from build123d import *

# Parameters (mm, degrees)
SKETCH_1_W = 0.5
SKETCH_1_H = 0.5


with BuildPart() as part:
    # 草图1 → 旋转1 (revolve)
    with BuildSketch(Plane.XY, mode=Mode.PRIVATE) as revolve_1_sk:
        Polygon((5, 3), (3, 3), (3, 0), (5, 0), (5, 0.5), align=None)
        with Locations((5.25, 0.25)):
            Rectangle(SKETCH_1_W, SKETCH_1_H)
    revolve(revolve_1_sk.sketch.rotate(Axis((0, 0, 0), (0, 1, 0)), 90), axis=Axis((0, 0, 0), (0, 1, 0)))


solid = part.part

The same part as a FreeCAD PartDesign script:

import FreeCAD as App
import Part
import Sketcher

doc = App.newDocument("Part")
body = doc.addObject("PartDesign::Body", "Body")

sketch1 = body.newObject("Sketcher::SketchObject", "Sketch")
sketch1.AttachmentSupport = (doc.getObject("XY_Plane"), [""])
sketch1.MapMode = "FlatFace"
sketch1.addGeometry(Part.LineSegment(App.Vector(5, 3, 0), App.Vector(3, 3, 0)), False)
sketch1.addGeometry(Part.LineSegment(App.Vector(3, 3, 0), App.Vector(3, 0, 0)), False)
sketch1.addGeometry(Part.LineSegment(App.Vector(3, 0, 0), App.Vector(5.5, 0, 0)), False)
sketch1.addGeometry(Part.LineSegment(App.Vector(5.5, 0, 0), App.Vector(5.5, 0.5, 0)), False)
sketch1.addGeometry(Part.LineSegment(App.Vector(5.5, 0.5, 0), App.Vector(5, 0.5, 0)), False)
sketch1.addGeometry(Part.LineSegment(App.Vector(5, 0.5, 0), App.Vector(5, 3, 0)), False)
sketch1.addConstraint(Sketcher.Constraint("Coincident", 0, 2, 1, 1))
sketch1.addConstraint(Sketcher.Constraint("Coincident", 1, 2, 2, 1))
sketch1.addConstraint(Sketcher.Constraint("Coincident", 2, 2, 3, 1))
sketch1.addConstraint(Sketcher.Constraint("Coincident", 3, 2, 4, 1))
sketch1.addConstraint(Sketcher.Constraint("Coincident", 4, 2, 5, 1))
sketch1.addConstraint(Sketcher.Constraint("Coincident", 5, 2, 0, 1))
sketch1.addConstraint(Sketcher.Constraint("Horizontal", 0))
sketch1.addConstraint(Sketcher.Constraint("Vertical", 1))
sketch1.addConstraint(Sketcher.Constraint("Horizontal", 2))
sketch1.addConstraint(Sketcher.Constraint("Vertical", 3))
sketch1.addConstraint(Sketcher.Constraint("Horizontal", 4))
sketch1.addConstraint(Sketcher.Constraint("Vertical", 5))
sketch1.addConstraint(Sketcher.Constraint("PointOnObject", 1, 2, -1))
sketch1.addConstraint(Sketcher.Constraint("Equal", 4, 3))
sketch1.addConstraint(Sketcher.Constraint("Equal", 2, 5))
sketch1.addConstraint(Sketcher.Constraint("DistanceX", 0, 2, 0, 1, 2.0))
sketch1.addConstraint(Sketcher.Constraint("DistanceY", 1, 2, 1, 1, 3.0))
sketch1.addConstraint(Sketcher.Constraint("DistanceX", -1, 1, 0, 2, 3.0))
revolution = body.newObject("PartDesign::Revolution", "Revolution")
revolution.Profile = sketch1
revolution.ReferenceAxis = (sketch1, ["V_Axis"])
revolution.Angle = 360

doc.recompute()
